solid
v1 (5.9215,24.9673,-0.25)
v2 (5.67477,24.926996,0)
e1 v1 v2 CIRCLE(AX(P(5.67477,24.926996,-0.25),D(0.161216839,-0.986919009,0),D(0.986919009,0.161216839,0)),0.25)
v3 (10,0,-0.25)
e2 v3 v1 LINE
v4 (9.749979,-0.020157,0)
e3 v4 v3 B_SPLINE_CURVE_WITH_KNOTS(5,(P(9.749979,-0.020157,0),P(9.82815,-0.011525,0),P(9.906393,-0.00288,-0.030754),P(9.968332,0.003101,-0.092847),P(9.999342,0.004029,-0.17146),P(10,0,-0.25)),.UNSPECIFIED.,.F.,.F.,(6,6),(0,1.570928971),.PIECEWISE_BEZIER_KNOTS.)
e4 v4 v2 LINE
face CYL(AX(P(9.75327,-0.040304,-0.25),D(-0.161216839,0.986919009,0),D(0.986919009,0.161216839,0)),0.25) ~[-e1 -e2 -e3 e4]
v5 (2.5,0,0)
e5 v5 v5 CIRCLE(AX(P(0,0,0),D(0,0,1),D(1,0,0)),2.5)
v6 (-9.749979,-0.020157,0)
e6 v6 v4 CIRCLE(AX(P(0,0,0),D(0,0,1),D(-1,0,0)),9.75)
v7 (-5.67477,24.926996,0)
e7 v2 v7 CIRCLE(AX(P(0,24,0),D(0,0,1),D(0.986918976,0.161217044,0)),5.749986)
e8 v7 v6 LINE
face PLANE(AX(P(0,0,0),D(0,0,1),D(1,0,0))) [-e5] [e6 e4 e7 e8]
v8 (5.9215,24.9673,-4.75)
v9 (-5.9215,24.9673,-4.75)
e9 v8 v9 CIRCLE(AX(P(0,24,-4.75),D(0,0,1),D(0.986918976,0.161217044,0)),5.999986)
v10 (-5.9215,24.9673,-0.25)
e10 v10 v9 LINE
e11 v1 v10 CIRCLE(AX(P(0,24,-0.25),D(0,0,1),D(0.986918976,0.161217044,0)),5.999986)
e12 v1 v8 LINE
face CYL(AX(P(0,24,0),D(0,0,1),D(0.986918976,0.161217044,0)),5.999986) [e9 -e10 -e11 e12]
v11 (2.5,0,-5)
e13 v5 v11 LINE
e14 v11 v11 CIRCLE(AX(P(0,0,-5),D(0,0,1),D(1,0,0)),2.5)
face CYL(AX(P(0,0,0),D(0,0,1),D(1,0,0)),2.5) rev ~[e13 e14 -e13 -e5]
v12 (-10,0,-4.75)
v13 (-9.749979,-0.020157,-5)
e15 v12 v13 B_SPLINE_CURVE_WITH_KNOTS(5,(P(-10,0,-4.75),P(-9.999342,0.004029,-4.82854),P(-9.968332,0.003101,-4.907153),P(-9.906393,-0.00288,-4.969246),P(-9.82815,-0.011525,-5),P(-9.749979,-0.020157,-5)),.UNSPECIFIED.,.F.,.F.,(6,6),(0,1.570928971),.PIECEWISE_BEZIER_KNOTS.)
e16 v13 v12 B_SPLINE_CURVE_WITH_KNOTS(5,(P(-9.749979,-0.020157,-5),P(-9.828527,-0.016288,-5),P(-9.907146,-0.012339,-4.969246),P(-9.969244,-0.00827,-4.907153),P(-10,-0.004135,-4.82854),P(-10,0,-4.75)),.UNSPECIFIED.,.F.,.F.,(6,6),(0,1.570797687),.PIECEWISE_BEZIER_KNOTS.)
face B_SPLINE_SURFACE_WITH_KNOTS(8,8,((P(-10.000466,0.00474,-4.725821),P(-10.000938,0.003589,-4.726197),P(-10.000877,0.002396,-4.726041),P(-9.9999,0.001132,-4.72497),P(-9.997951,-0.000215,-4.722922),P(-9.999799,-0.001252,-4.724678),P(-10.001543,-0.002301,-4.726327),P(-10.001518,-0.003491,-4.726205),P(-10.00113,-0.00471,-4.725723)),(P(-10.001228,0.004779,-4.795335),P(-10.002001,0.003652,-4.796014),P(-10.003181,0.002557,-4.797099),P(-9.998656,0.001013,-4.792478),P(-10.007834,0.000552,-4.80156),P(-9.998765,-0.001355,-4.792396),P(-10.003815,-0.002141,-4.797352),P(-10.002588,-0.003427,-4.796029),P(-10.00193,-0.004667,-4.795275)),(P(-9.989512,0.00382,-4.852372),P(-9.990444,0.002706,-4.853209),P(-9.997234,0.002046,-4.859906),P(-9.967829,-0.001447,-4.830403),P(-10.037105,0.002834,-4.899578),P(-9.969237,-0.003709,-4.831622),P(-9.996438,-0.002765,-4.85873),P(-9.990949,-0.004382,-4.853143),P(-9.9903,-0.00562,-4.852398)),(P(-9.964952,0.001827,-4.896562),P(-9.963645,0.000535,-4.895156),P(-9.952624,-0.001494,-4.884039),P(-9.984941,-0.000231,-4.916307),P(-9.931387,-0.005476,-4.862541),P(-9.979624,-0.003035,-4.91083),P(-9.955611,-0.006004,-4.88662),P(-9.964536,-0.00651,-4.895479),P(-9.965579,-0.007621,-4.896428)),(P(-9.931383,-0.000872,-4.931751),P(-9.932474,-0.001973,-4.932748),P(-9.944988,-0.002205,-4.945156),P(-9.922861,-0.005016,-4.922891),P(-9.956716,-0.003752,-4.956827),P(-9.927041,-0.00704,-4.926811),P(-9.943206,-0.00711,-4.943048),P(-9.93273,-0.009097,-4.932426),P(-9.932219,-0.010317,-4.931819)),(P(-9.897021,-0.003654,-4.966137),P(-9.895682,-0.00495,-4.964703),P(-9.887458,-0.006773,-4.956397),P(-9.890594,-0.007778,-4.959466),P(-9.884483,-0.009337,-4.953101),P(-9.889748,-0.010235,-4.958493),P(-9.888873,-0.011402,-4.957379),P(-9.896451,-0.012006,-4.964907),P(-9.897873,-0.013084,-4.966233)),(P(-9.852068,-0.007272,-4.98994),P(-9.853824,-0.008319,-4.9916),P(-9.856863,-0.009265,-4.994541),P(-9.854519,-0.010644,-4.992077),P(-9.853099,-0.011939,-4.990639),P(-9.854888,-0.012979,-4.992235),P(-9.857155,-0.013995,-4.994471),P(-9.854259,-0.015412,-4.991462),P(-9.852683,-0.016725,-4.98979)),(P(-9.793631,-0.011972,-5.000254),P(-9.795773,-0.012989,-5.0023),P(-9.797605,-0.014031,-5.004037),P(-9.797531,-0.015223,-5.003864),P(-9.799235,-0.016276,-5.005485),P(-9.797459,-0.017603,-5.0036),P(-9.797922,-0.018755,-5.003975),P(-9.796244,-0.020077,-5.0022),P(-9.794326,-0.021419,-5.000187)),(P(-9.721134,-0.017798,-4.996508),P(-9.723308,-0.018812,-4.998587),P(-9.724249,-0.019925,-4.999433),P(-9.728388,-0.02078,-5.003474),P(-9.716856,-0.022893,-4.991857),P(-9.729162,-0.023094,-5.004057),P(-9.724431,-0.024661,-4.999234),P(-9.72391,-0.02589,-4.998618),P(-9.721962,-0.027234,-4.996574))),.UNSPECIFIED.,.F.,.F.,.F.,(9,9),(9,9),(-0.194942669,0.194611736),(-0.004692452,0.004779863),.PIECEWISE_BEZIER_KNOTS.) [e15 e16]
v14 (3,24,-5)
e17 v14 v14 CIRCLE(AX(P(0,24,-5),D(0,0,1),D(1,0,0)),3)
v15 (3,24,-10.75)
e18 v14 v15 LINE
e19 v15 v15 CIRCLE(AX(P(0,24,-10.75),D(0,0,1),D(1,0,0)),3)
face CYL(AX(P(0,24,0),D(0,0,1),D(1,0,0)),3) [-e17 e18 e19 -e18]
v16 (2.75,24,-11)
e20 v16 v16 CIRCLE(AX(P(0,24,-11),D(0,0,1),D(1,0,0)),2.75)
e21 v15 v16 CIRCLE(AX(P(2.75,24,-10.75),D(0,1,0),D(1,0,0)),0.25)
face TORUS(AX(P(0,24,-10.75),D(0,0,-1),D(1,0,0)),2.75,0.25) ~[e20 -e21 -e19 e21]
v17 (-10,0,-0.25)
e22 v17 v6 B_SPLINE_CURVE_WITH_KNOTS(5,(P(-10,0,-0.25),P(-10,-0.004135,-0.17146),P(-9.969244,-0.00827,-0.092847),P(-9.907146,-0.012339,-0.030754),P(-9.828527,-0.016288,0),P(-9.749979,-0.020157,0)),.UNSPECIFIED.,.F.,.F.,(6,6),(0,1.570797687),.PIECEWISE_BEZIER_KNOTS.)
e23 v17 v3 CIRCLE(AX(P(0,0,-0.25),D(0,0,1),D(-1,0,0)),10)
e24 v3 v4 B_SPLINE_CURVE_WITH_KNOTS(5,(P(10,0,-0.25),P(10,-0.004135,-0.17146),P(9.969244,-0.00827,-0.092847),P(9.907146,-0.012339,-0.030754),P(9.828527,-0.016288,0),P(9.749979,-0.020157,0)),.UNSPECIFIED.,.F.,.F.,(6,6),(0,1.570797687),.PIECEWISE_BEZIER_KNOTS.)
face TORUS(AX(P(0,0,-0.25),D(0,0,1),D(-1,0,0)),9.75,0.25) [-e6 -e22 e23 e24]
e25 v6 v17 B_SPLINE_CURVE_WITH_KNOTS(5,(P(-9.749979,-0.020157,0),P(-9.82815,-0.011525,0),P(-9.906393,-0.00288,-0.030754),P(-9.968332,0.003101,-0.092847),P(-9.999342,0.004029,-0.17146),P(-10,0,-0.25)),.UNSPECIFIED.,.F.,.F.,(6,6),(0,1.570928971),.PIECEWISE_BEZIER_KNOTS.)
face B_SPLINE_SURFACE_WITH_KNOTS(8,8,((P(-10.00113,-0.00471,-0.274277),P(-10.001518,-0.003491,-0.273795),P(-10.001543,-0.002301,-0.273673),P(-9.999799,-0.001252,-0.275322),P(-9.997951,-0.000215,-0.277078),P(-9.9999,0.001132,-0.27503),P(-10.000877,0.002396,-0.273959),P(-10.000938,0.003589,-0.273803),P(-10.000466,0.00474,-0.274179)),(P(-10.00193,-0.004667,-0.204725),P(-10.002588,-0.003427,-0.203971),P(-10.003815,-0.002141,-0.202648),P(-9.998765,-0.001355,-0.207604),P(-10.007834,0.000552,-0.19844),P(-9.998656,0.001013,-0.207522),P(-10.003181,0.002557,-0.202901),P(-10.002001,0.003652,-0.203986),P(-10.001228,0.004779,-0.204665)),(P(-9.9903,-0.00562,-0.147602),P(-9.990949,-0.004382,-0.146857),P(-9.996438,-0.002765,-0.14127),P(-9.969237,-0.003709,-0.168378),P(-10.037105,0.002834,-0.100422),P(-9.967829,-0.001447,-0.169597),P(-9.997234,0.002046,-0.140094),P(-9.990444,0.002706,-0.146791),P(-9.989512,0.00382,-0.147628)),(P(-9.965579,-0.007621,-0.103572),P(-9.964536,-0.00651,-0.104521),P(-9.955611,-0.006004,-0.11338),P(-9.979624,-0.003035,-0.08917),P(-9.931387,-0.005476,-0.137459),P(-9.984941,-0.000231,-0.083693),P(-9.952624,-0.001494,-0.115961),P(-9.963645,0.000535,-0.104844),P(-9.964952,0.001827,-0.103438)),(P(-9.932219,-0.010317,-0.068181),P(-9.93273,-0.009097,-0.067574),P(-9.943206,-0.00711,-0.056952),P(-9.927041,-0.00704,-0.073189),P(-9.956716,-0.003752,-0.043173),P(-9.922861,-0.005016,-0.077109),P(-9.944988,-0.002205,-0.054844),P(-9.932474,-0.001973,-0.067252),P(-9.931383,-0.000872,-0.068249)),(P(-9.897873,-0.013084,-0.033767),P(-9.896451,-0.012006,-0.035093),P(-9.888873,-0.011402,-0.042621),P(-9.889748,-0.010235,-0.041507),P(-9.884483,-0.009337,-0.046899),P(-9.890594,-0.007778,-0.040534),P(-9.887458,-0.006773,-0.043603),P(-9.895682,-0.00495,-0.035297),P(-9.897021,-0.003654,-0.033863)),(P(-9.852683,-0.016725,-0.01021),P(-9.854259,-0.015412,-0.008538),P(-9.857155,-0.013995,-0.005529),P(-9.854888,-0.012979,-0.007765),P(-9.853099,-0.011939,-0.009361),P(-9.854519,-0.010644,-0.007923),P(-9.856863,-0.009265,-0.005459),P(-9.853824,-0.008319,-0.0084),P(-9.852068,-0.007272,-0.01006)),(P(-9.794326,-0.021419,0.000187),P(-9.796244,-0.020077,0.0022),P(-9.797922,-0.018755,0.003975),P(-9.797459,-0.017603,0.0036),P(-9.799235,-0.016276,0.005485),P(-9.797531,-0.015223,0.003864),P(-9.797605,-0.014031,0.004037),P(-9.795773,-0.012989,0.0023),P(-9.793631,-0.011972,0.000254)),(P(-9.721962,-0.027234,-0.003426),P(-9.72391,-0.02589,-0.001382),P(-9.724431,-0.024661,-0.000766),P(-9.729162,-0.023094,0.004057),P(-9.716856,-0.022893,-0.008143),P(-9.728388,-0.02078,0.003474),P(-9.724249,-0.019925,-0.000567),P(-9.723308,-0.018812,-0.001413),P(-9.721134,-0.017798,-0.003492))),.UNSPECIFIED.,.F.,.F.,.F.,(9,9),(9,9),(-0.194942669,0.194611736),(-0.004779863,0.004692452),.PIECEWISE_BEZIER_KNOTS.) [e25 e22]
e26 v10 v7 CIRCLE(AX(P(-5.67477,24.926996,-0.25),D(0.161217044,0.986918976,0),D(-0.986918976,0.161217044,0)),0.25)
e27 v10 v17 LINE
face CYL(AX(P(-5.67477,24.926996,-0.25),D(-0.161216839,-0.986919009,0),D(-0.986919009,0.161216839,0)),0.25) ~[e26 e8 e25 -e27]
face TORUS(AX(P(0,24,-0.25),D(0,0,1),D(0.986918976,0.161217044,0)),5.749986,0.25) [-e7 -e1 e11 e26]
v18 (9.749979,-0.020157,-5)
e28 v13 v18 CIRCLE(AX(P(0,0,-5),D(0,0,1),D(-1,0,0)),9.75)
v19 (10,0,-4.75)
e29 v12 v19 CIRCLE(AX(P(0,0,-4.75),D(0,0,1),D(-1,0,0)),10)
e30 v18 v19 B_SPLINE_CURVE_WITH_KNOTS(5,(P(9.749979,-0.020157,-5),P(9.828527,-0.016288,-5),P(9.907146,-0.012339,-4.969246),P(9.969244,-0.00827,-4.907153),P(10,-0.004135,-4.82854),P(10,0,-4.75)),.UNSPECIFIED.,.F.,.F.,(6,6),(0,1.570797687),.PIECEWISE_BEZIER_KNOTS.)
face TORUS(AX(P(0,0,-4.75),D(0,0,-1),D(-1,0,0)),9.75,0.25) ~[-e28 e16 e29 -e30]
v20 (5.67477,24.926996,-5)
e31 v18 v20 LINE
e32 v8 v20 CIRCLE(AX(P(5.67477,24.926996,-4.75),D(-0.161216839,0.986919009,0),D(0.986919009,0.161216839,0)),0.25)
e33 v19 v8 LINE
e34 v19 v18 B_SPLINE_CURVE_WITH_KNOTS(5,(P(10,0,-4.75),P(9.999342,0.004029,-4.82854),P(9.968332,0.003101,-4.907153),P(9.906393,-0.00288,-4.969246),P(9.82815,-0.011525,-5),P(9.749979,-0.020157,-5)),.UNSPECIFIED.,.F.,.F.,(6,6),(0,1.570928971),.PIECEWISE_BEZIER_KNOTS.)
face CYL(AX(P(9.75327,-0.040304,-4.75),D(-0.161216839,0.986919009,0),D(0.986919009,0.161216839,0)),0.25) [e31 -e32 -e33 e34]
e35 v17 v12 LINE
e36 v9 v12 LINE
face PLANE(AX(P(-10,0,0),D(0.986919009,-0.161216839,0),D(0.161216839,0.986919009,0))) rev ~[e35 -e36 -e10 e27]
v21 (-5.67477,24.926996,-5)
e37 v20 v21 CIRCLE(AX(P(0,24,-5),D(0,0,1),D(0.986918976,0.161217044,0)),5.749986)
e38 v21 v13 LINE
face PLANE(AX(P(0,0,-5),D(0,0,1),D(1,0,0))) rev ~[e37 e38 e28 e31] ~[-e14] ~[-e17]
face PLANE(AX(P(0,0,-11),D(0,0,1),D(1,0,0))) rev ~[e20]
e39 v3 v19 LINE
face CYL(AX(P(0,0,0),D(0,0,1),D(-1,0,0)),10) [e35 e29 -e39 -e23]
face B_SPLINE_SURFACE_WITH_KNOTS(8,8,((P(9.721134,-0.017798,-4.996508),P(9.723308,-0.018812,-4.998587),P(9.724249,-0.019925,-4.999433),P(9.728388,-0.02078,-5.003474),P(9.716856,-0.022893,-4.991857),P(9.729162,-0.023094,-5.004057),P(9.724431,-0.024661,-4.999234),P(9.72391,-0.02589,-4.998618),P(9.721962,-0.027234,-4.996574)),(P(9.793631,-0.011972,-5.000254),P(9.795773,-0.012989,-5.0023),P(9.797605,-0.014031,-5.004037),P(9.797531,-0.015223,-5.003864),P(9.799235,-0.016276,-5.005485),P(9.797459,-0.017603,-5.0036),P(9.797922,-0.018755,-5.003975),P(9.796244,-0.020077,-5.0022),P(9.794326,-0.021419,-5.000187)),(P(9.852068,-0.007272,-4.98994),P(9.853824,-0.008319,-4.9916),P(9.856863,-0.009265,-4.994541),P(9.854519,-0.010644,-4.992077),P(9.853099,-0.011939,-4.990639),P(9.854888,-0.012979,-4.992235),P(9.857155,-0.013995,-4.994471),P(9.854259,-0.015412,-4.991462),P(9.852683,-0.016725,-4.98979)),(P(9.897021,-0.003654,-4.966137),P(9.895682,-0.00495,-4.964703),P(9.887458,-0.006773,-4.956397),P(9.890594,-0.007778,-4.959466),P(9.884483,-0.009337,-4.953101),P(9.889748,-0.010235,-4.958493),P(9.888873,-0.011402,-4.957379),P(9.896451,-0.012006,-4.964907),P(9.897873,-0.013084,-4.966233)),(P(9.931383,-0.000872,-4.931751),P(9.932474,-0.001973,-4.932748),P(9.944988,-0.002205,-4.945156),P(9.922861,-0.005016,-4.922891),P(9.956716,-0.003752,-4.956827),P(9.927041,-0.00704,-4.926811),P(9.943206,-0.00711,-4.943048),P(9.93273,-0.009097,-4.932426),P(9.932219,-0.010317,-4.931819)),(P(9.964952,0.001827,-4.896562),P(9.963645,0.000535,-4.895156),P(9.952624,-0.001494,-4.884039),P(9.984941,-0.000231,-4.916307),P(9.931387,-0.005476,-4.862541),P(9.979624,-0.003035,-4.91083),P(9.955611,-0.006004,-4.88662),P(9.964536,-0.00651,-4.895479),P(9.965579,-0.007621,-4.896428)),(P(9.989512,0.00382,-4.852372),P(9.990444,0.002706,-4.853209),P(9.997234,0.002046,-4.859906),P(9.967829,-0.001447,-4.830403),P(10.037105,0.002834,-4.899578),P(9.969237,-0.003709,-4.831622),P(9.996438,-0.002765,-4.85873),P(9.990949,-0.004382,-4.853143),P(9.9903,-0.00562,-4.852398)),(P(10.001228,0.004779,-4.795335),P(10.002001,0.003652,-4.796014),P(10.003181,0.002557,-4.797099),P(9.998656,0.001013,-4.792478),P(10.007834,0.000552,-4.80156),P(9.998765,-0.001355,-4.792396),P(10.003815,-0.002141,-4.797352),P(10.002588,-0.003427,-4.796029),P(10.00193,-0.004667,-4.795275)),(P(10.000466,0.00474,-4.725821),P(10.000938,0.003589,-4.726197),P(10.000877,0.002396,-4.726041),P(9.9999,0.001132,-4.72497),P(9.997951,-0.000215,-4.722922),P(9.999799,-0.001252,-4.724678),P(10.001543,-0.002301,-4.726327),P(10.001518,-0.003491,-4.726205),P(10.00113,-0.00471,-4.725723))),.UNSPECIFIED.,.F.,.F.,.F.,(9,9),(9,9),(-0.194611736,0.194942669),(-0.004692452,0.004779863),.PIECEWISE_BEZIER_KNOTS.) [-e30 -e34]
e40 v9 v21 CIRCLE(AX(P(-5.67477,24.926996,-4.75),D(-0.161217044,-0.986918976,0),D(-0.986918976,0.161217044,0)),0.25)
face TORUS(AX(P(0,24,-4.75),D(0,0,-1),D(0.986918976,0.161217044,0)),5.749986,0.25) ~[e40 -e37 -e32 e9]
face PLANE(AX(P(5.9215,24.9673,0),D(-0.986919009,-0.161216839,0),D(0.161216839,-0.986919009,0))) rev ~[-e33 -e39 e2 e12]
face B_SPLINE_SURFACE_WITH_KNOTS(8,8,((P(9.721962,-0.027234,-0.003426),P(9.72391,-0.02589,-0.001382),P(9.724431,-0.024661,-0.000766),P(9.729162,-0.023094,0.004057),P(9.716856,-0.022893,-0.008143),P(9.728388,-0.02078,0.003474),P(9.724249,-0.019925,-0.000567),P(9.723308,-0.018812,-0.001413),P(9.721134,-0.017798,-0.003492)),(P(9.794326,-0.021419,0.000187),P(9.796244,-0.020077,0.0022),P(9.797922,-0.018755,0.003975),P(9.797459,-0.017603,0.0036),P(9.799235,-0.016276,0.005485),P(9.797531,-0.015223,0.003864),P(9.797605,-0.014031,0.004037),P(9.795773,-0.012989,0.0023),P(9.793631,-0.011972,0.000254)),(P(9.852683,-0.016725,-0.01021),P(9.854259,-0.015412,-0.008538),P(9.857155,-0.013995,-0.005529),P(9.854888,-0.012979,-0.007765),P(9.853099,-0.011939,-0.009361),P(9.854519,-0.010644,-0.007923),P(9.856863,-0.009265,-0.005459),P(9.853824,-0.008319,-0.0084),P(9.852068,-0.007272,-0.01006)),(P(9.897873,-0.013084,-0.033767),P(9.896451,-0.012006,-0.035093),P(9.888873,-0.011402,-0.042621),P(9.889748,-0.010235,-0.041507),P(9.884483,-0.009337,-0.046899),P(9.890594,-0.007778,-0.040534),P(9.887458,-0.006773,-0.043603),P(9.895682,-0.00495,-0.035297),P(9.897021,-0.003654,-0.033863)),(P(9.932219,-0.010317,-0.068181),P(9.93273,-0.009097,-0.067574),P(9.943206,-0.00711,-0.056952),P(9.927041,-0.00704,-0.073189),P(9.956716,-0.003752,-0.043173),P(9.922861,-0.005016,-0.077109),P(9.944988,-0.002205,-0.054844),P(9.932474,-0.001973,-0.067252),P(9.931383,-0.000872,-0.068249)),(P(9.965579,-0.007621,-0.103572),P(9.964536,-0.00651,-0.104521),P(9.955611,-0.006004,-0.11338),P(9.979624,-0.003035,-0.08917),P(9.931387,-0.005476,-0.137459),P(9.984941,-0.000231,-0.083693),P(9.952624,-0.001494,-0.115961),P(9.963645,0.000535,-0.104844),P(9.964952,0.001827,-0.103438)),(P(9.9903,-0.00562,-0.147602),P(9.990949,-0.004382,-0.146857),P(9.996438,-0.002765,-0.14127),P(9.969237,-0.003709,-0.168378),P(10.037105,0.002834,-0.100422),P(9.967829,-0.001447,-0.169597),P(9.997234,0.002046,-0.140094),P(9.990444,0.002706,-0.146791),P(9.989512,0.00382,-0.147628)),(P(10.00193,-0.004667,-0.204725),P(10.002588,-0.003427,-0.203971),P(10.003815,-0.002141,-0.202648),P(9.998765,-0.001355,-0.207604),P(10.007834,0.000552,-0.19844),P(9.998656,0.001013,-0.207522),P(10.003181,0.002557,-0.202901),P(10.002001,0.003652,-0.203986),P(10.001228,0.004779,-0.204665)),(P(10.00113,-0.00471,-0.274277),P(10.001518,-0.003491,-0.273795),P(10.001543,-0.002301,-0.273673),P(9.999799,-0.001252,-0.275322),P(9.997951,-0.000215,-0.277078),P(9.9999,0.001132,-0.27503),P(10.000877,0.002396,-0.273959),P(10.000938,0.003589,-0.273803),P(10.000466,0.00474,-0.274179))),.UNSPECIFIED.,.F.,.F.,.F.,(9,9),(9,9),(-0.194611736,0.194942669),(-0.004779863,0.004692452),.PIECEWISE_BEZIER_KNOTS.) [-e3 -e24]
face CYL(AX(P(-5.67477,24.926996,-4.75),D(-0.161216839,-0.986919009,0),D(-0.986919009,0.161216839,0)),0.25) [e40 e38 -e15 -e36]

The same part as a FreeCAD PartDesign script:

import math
import FreeCAD as App
import Part
import Sketcher

V = App.Vector
Q = App.Units.Quantity


def edges_at(feature, points):
    """Names of the edges that pass closest to the given points."""
    edges = feature.Shape.Edges
    near = lambda p: min(range(len(edges)), key=lambda i: edges[i].distToShape(Part.Vertex(*p))[0])
    return sorted({f"Edge{near(p) + 1}" for p in points})

doc = App.newDocument("Part")
body = doc.addObject("PartDesign::Body", "Body")

sketch1 = body.newObject("Sketcher::SketchObject", "Sketch")
sketch1.AttachmentSupport = (doc.getObject("XY_Plane"), [""])
sketch1.MapMode = "FlatFace"
sketch1.addGeometry([
    Part.LineSegment(V(-5.9215, 24.9673, 0), V(-10, 0, 0)),
    Part.ArcOfCircle(Part.Circle(V(0, 0, 0), V(0, 0, 1), 10), math.radians(180), math.radians(360)),
    Part.LineSegment(V(10, 0, 0), V(5.9215, 24.9673, 0)),
    Part.ArcOfCircle(Part.Circle(V(0, 24, 0), V(0, 0, 1), 5.999986), math.radians(9.277545), math.radians(170.722455)),
], False)
sketch1.addConstraint([
    Sketcher.Constraint("Coincident", 0, 2, 1, 1),
    Sketcher.Constraint("Coincident", 1, 2, 2, 1),
    Sketcher.Constraint("Tangent", 2, 2, 3, 1),
    Sketcher.Constraint("Tangent", 3, 2, 0, 1),
    Sketcher.Constraint("Coincident", 1, 3, -1, 1),
    Sketcher.Constraint("Symmetric", 2, 2, 3, 2, -2),
    Sketcher.Constraint("PointOnObject", 0, 2, -1),
    Sketcher.Constraint("Radius", 1, Q("10 mm")),
    Sketcher.Constraint("Radius", 3, Q("6 mm")),
    Sketcher.Constraint("DistanceY", -1, 1, 3, 3, Q("24 mm")),
])
pad1 = body.newObject("PartDesign::Pad", "Pad")
pad1.Profile = sketch1
pad1.Length = 5
pad1.Reversed = True

sketch2 = body.newObject("Sketcher::SketchObject", "Sketch001")
sketch2.AttachmentSupport = (doc.getObject("XY_Plane"), [""])
sketch2.MapMode = "FlatFace"
sketch2.addGeometry(Part.Circle(V(0, 24, 0), V(0, 0, 1), 3), False)
sketch2.addConstraint([
    Sketcher.Constraint("PointOnObject", 0, 3, -2),
    Sketcher.Constraint("Diameter", 0, Q("6 mm")),
    Sketcher.Constraint("DistanceY", -1, 1, 0, 3, Q("24 mm")),
])
pad2 = body.newObject("PartDesign::Pad", "Pad001")
pad2.Profile = sketch2
pad2.Length = 11
pad2.Reversed = True

sketch3 = body.newObject("Sketcher::SketchObject", "Sketch002")
sketch3.AttachmentSupport = (doc.getObject("XY_Plane"), [""])
sketch3.MapMode = "FlatFace"
sketch3.addGeometry(Part.Circle(V(0, 0, 0), V(0, 0, 1), 2.5), False)
sketch3.addConstraint([
    Sketcher.Constraint("Coincident", 0, 3, -1, 1),
    Sketcher.Constraint("Diameter", 0, Q("5 mm")),
])
pocket1 = body.newObject("PartDesign::Pocket", "Pocket")
pocket1.Profile = sketch3
pocket1.Length = 5
doc.recompute()

fillet = body.newObject("PartDesign::Fillet", "Fillet")
fillet.Base = (pocket1, edges_at(pocket1, [
    (-3, 24, -11),
    (0, 30, -5),
    (-7.961, 12.484, -5),
    (7.961, 12.484, -5),
    (0, -10, -5),
    (0, -10, 0),
    (0, 30, 0),
    (-7.961, 12.484, 0),
    (7.961, 12.484, 0),
]))
fillet.Radius = 0.25

doc.recompute()
